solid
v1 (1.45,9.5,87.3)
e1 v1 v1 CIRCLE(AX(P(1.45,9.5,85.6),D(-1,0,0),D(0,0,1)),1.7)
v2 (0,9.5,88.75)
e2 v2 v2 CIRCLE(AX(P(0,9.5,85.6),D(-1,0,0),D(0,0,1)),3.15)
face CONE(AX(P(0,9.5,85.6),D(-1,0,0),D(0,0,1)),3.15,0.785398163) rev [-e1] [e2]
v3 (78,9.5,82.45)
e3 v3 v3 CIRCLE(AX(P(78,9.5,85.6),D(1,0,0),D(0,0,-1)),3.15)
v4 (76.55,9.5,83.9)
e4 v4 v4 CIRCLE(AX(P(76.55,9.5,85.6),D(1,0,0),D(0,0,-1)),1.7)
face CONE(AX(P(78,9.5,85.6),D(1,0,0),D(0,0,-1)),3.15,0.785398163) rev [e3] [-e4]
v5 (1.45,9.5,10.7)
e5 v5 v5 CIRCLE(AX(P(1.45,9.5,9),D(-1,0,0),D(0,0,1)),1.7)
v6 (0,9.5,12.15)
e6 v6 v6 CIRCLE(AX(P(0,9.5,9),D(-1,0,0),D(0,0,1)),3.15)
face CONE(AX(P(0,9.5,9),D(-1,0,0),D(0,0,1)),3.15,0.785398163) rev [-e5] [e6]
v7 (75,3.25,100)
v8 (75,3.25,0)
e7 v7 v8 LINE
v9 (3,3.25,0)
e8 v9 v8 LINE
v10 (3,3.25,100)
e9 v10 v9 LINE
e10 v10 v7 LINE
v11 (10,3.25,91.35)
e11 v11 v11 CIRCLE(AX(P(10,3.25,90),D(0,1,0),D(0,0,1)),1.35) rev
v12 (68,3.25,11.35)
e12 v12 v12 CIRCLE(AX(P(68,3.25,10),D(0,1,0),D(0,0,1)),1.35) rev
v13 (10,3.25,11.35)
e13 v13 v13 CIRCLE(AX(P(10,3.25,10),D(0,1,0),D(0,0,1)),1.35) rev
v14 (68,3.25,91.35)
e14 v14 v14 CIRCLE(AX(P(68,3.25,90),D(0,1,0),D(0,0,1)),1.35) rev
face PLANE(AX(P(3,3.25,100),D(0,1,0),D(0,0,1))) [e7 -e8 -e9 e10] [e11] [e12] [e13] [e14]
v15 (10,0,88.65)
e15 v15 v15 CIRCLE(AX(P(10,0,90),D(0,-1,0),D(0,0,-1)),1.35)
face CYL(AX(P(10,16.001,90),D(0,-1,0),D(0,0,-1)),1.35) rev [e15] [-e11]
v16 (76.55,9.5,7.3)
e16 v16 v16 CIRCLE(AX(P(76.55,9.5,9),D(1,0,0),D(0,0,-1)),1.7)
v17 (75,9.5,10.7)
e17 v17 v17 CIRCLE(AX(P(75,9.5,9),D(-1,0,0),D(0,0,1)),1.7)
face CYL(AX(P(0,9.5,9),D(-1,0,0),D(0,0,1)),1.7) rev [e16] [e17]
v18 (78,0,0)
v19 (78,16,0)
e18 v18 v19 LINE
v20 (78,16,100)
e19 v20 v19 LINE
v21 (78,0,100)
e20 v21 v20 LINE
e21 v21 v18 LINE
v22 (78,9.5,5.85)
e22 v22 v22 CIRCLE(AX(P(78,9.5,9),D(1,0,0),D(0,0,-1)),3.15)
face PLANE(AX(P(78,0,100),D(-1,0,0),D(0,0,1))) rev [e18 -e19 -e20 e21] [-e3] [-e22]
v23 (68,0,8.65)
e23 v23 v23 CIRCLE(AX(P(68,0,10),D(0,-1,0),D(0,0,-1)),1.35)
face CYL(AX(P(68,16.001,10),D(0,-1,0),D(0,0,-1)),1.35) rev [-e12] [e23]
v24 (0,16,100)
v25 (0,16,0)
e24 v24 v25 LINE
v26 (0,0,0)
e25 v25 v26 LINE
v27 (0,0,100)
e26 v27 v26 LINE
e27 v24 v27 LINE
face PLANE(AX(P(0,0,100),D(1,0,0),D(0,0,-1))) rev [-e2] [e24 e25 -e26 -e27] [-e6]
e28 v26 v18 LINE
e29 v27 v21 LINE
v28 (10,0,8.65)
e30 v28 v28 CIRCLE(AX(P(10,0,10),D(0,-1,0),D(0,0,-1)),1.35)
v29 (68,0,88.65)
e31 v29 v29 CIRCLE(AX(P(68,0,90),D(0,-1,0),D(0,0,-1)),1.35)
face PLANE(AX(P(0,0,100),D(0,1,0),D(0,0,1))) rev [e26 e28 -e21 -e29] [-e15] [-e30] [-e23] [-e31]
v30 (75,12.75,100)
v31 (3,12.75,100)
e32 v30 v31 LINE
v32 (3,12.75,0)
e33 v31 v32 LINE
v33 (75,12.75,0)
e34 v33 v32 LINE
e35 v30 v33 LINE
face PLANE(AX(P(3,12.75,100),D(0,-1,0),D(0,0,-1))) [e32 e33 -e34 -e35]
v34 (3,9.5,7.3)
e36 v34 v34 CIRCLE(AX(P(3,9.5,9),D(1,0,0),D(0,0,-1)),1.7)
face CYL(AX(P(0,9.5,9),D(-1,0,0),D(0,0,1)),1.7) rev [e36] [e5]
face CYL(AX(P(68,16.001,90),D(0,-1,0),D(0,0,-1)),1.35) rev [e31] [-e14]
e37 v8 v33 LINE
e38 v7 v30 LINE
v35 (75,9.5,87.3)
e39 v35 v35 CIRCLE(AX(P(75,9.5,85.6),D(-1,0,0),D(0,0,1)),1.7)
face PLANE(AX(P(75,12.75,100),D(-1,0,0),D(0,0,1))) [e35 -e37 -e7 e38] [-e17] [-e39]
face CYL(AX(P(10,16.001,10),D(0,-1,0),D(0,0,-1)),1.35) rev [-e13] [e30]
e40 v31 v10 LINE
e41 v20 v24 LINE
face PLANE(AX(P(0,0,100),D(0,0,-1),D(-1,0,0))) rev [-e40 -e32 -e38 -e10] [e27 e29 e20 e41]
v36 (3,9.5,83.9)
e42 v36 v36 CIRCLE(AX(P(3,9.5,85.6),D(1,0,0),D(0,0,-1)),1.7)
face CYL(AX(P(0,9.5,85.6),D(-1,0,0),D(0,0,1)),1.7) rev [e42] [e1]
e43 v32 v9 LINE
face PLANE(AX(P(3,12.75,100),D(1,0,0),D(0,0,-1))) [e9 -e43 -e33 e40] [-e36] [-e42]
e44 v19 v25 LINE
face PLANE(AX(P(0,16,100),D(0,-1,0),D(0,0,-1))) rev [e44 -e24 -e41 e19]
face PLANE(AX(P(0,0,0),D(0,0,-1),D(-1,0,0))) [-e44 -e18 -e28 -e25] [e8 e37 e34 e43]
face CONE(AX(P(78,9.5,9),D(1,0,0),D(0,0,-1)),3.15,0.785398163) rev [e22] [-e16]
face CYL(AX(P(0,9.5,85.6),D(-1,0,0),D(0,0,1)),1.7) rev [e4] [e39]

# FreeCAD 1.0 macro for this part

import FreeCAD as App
import Part
import Sketcher


def add_polygon(sketch, points):
    """Adds a closed chain of lines whose ends are joined by coincident constraints."""
    first, n = sketch.GeometryCount, len(points)
    for a, b in zip(points, points[1:] + points[:1]):
        sketch.addGeometry(Part.LineSegment(App.Vector(*a, 0), App.Vector(*b, 0)), False)
    for i in range(n):
        sketch.addConstraint(Sketcher.Constraint("Coincident", first + i, 2, first + (i + 1) % n, 1))

doc = App.newDocument("Part")
body = doc.addObject("PartDesign::Body", "Body")

# Sketch on XY plane
sketch1 = doc.addObject("Sketcher::SketchObject", "Sketch")
body.addObject(sketch1)
sketch1.AttachmentSupport = (doc.XY_Plane, [""])
sketch1.MapMode = "FlatFace"
add_polygon(sketch1, [(0, 16), (0, 0), (78, 0), (78, 16)])  # lines 0-3
add_polygon(sketch1, [(75, 3), (3, 3), (3, 13), (75, 13)])  # lines 4-7
sketch1.addConstraint([
    Sketcher.Constraint("Vertical", 0),
    Sketcher.Constraint("Horizontal", 1),
    Sketcher.Constraint("Vertical", 2),
    Sketcher.Constraint("Horizontal", 3),
    Sketcher.Constraint("Horizontal", 4),
    Sketcher.Constraint("Vertical", 5),
    Sketcher.Constraint("Horizontal", 6),
    Sketcher.Constraint("Vertical", 7),
    Sketcher.Constraint("Coincident", 0, 2, -1, 1),
    Sketcher.Constraint("DistanceX", 1, 1, 1, 2, 78.0),
    Sketcher.Constraint("DistanceX", 4, 2, 4, 1, 72.0),
    Sketcher.Constraint("DistanceY", 0, 2, 0, 1, 16.0),
    Sketcher.Constraint("DistanceY", 5, 1, 5, 2, 9.5),
    Sketcher.Constraint("DistanceX", -1, 1, 4, 2, 3.0),
    Sketcher.Constraint("DistanceY", -1, 1, 4, 2, 3.25),
])
pad1 = doc.addObject("PartDesign::Pad", "Pad")
body.addObject(pad1)
pad1.Profile = sketch1
pad1.Length = 100

# Sketch on YZ plane
sketch2 = doc.addObject("Sketcher::SketchObject", "Sketch001")
body.addObject(sketch2)
sketch2.AttachmentSupport = (doc.YZ_Plane, [""])
sketch2.MapMode = "FlatFace"
sketch2.addGeometry(Part.Circle(App.Vector(9.5, 9, 0), App.Vector(0, 0, 1), 1.7), False)
sketch2.addConstraint([
    Sketcher.Constraint("Diameter", 0, 3.4),
    Sketcher.Constraint("DistanceY", -1, 1, 0, 3, 9.0),
    Sketcher.Constraint("DistanceX", -1, 1, 0, 3, 9.5),
])
doc.recompute()
hole = doc.addObject("PartDesign::Hole", "Hole")
body.addObject(hole)
hole.Profile = sketch2
hole.ThreadType = "None"
hole.Diameter = 3.4
hole.DepthType = "ThroughAll"
hole.HoleCutType = "Countersink"
hole.HoleCutDiameter = 6.3
hole.HoleCutCountersinkAngle = 90
hole.Reversed = True
doc.recompute()

linearpattern = doc.addObject("PartDesign::LinearPattern", "LinearPattern")
body.addObject(linearpattern)
linearpattern.Originals = [hole]
linearpattern.Direction = (doc.Z_Axis, [""])
linearpattern.Mode = "offset"
linearpattern.Offset = 76.6
linearpattern.Occurrences = 2
body.Tip = linearpattern

# Sketch on YZ plane
sketch3 = doc.addObject("Sketcher::SketchObject", "Sketch002")
body.addObject(sketch3)
sketch3.AttachmentSupport = (doc.YZ_Plane, [""])
sketch3.MapMode = "FlatFace"
sketch3.AttachmentOffset = App.Placement(App.Vector(0, 0, 78), App.Rotation())
sketch3.addGeometry(Part.Circle(App.Vector(9.5, 85.6, 0), App.Vector(0, 0, 1), 1.7), False)
sketch3.addConstraint([
    Sketcher.Constraint("Diameter", 0, 3.4),
    Sketcher.Constraint("DistanceX", -1, 1, 0, 3, 9.5),
    Sketcher.Constraint("DistanceY", -1, 1, 0, 3, 85.6),
])
doc.recompute()
hole2 = doc.addObject("PartDesign::Hole", "Hole001")
body.addObject(hole2)
hole2.Profile = sketch3
hole2.ThreadType = "None"
hole2.Diameter = 3.4
hole2.DepthType = "ThroughAll"
hole2.HoleCutType = "Countersink"
hole2.HoleCutDiameter = 6.3
hole2.HoleCutCountersinkAngle = 90
doc.recompute()

linearpattern2 = doc.addObject("PartDesign::LinearPattern", "LinearPattern001")
body.addObject(linearpattern2)
linearpattern2.Originals = [hole2]
linearpattern2.Direction = (doc.X_Axis, [""])
linearpattern2.Mode = "offset"
linearpattern2.Offset = 76.5
linearpattern2.Occurrences = 2
body.Tip = linearpattern2

# Sketch on YZ plane
sketch4 = doc.addObject("Sketcher::SketchObject", "Sketch003")
body.addObject(sketch4)
sketch4.AttachmentSupport = (doc.YZ_Plane, [""])
sketch4.MapMode = "FlatFace"
sketch4.AttachmentOffset = App.Placement(App.Vector(0, 0, 78), App.Rotation())
sketch4.addGeometry(Part.Circle(App.Vector(9.5, 9, 0), App.Vector(0, 0, 1), 1.7), False)
sketch4.addConstraint([
    Sketcher.Constraint("Diameter", 0, 3.4),
    Sketcher.Constraint("DistanceY", -1, 1, 0, 3, 9.0),
    Sketcher.Constraint("DistanceX", -1, 1, 0, 3, 9.5),
])
doc.recompute()
hole3 = doc.addObject("PartDesign::Hole", "Hole002")
body.addObject(hole3)
hole3.Profile = sketch4
hole3.ThreadType = "None"
hole3.Diameter = 3.4
hole3.DepthType = "ThroughAll"
hole3.HoleCutType = "Countersink"
hole3.HoleCutDiameter = 6.3
hole3.HoleCutCountersinkAngle = 90

# Sketch on XZ plane
sketch5 = doc.addObject("Sketcher::SketchObject", "Sketch004")
body.addObject(sketch5)
sketch5.AttachmentSupport = (doc.XZ_Plane, [""])
sketch5.MapMode = "FlatFace"
sketch5.addGeometry(Part.Circle(App.Vector(68, 90, 0), App.Vector(0, 0, 1), 1.4), False)
sketch5.addConstraint([
    Sketcher.Constraint("Diameter", 0, 2.7),
    Sketcher.Constraint("DistanceX", -1, 1, 0, 3, 68.0),
    Sketcher.Constraint("DistanceY", -1, 1, 0, 3, 90.0),
])
pocket1 = doc.addObject("PartDesign::Pocket", "Pocket")
body.addObject(pocket1)
pocket1.Profile = sketch5
pocket1.Type = "UpToFirst"

# Sketch on XZ plane
sketch6 = doc.addObject("Sketcher::SketchObject", "Sketch005")
body.addObject(sketch6)
sketch6.AttachmentSupport = (doc.XZ_Plane, [""])
sketch6.MapMode = "FlatFace"
sketch6.addGeometry(Part.Circle(App.Vector(68, 10, 0), App.Vector(0, 0, 1), 1.4), False)
sketch6.addConstraint([
    Sketcher.Constraint("Diameter", 0, 2.7),
    Sketcher.Constraint("DistanceX", -1, 1, 0, 3, 68.0),
    Sketcher.Constraint("DistanceY", -1, 1, 0, 3, 10.0),
])
pocket2 = doc.addObject("PartDesign::Pocket", "Pocket001")
body.addObject(pocket2)
pocket2.Profile = sketch6
pocket2.Type = "UpToFirst"

# Sketch on XZ plane
sketch7 = doc.addObject("Sketcher::SketchObject", "Sketch006")
body.addObject(sketch7)
sketch7.AttachmentSupport = (doc.XZ_Plane, [""])
sketch7.MapMode = "FlatFace"
sketch7.addGeometry(Part.Circle(App.Vector(10, 10, 0), App.Vector(0, 0, 1), 1.4), False)
sketch7.addConstraint([
    Sketcher.Constraint("Diameter", 0, 2.7),
    Sketcher.Constraint("DistanceX", -1, 1, 0, 3, 10.0),
    Sketcher.Constraint("DistanceY", -1, 1, 0, 3, 10.0),
])
pocket3 = doc.addObject("PartDesign::Pocket", "Pocket002")
body.addObject(pocket3)
pocket3.Profile = sketch7
pocket3.Type = "UpToFirst"

# Sketch on XZ plane
sketch8 = doc.addObject("Sketcher::SketchObject", "Sketch007")
body.addObject(sketch8)
sketch8.AttachmentSupport = (doc.XZ_Plane, [""])
sketch8.MapMode = "FlatFace"
sketch8.addGeometry(Part.Circle(App.Vector(10, 90, 0), App.Vector(0, 0, 1), 1.4), False)
sketch8.addConstraint([
    Sketcher.Constraint("Diameter", 0, 2.7),
    Sketcher.Constraint("DistanceX", -1, 1, 0, 3, 10.0),
    Sketcher.Constraint("DistanceY", -1, 1, 0, 3, 90.0),
])
pocket4 = doc.addObject("PartDesign::Pocket", "Pocket003")
body.addObject(pocket4)
pocket4.Profile = sketch8
pocket4.Type = "UpToFirst"

doc.recompute()
